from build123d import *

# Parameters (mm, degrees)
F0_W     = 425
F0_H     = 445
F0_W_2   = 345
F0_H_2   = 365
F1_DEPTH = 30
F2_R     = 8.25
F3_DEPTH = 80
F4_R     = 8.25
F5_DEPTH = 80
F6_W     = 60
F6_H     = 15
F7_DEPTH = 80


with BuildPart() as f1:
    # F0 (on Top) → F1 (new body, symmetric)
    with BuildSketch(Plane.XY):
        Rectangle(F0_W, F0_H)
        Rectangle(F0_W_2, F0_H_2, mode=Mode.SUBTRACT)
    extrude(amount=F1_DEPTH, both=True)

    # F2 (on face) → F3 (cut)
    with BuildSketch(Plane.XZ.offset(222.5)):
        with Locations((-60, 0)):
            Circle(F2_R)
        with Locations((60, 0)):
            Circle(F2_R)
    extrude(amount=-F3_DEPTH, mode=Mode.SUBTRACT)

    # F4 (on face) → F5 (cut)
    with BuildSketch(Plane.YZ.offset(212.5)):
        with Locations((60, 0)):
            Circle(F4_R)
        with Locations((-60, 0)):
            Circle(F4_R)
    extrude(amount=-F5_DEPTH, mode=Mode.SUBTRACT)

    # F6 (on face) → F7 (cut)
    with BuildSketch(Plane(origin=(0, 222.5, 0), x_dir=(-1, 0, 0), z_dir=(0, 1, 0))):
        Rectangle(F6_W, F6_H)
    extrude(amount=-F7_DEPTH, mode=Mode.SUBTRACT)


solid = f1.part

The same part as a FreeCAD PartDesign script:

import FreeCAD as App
import Part
import Sketcher
from FreeCAD import Vector


def add_polygon(sketch, points):
    """Adds a closed chain of lines whose ends are joined by coincident constraints."""
    first, n = sketch.GeometryCount, len(points)
    for a, b in zip(points, points[1:] + points[:1]):
        sketch.addGeometry(Part.LineSegment(App.Vector(*a, 0), App.Vector(*b, 0)), False)
    for i in range(n):
        sketch.addConstraint(Sketcher.Constraint("Coincident", first + i, 2, first + (i + 1) % n, 1))

doc = App.newDocument("Part")
body = doc.addObject("PartDesign::Body", "Body")

# Sketch on XY plane
sketch1 = body.newObject("Sketcher::SketchObject", "Sketch")
sketch1.AttachmentSupport = (doc.getObject("XY_Plane"), [""])
sketch1.MapMode = "FlatFace"
add_polygon(sketch1, [(-212, 222), (-212, -222), (212, -222), (212, 222)])  # lines 0-3
add_polygon(sketch1, [(172, -182), (-172, -182), (-172, 182), (172, 182)])  # lines 4-7
sketch1.addConstraint([
    Sketcher.Constraint("Vertical", 0),
    Sketcher.Constraint("Horizontal", 1),
    Sketcher.Constraint("Vertical", 2),
    Sketcher.Constraint("Horizontal", 3),
    Sketcher.Constraint("Horizontal", 4),
    Sketcher.Constraint("Vertical", 5),
    Sketcher.Constraint("Horizontal", 6),
    Sketcher.Constraint("Vertical", 7),
    Sketcher.Constraint("Symmetric", 0, 2, 2, 2, -1, 1),
    Sketcher.Constraint("Symmetric", 4, 2, 6, 2, -1, 1),
    Sketcher.Constraint("DistanceX", 1, 1, 1, 2, 425.0),
    Sketcher.Constraint("DistanceX", 4, 2, 4, 1, 345.0),
    Sketcher.Constraint("DistanceY", 0, 2, 0, 1, 445.0),
    Sketcher.Constraint("DistanceY", 5, 1, 5, 2, 365.0),
])
pad1 = body.newObject("PartDesign::Pad", "Pad")
pad1.Profile = sketch1
pad1.Length = 60
pad1.Midplane = True

# Sketch on XZ plane
sketch2 = body.newObject("Sketcher::SketchObject", "Sketch001")
sketch2.AttachmentSupport = (doc.getObject("XZ_Plane"), [""])
sketch2.MapMode = "FlatFace"
sketch2.AttachmentOffset = App.Placement(Vector(0, 0, 222.5), App.Rotation())
sketch2.addGeometry([
    Part.Circle(Vector(-60, 0, 0), Vector(0, 0, 1), 8),
    Part.Circle(Vector(60, 0, 0), Vector(0, 0, 1), 8),
], False)
sketch2.addConstraint([
    Sketcher.Constraint("Equal", 0, 1),
    Sketcher.Constraint("Symmetric", 0, 3, 1, 3, -1, 1),
    Sketcher.Constraint("PointOnObject", 0, 3, -1),
    Sketcher.Constraint("Diameter", 0, 16.5),
    Sketcher.Constraint("DistanceX", 0, 3, -1, 1, 60.0),
])
pocket1 = body.newObject("PartDesign::Pocket", "Pocket")
pocket1.Profile = sketch2
pocket1.Length = 80

# Sketch on YZ plane
sketch3 = body.newObject("Sketcher::SketchObject", "Sketch002")
sketch3.AttachmentSupport = (doc.getObject("YZ_Plane"), [""])
sketch3.MapMode = "FlatFace"
sketch3.AttachmentOffset = App.Placement(Vector(0, 0, 212.5), App.Rotation())
sketch3.addGeometry([
    Part.Circle(Vector(60, 0, 0), Vector(0, 0, 1), 8),
    Part.Circle(Vector(-60, 0, 0), Vector(0, 0, 1), 8),
], False)
sketch3.addConstraint([
    Sketcher.Constraint("Equal", 0, 1),
    Sketcher.Constraint("Symmetric", 0, 3, 1, 3, -1, 1),
    Sketcher.Constraint("PointOnObject", 0, 3, -1),
    Sketcher.Constraint("Diameter", 0, 16.5),
    Sketcher.Constraint("DistanceX", -1, 1, 0, 3, 60.0),
])
pocket2 = body.newObject("PartDesign::Pocket", "Pocket001")
pocket2.Profile = sketch3
pocket2.Length = 80

# Sketch on XZ plane
sketch4 = body.newObject("Sketcher::SketchObject", "Sketch003")
sketch4.AttachmentSupport = (doc.getObject("XZ_Plane"), [""])
sketch4.MapMode = "FlatFace"
sketch4.AttachmentOffset = App.Placement(Vector(0, 0, -222.5), App.Rotation())
add_polygon(sketch4, [(30, 8), (30, -8), (-30, -8), (-30, 8)])  # lines 0-3
sketch4.addConstraint([
    Sketcher.Constraint("Vertical", 0),
    Sketcher.Constraint("Horizontal", 1),
    Sketcher.Constraint("Vertical", 2),
    Sketcher.Constraint("Horizontal", 3),
    Sketcher.Constraint("Symmetric", 0, 2, 2, 2, -1, 1),
    Sketcher.Constraint("DistanceX", 1, 2, 1, 1, 60.0),
    Sketcher.Constraint("DistanceY", 0, 2, 0, 1, 15.0),
])
pocket3 = body.newObject("PartDesign::Pocket", "Pocket002")
pocket3.Profile = sketch4
pocket3.Length = 80
pocket3.Reversed = True

doc.recompute()
